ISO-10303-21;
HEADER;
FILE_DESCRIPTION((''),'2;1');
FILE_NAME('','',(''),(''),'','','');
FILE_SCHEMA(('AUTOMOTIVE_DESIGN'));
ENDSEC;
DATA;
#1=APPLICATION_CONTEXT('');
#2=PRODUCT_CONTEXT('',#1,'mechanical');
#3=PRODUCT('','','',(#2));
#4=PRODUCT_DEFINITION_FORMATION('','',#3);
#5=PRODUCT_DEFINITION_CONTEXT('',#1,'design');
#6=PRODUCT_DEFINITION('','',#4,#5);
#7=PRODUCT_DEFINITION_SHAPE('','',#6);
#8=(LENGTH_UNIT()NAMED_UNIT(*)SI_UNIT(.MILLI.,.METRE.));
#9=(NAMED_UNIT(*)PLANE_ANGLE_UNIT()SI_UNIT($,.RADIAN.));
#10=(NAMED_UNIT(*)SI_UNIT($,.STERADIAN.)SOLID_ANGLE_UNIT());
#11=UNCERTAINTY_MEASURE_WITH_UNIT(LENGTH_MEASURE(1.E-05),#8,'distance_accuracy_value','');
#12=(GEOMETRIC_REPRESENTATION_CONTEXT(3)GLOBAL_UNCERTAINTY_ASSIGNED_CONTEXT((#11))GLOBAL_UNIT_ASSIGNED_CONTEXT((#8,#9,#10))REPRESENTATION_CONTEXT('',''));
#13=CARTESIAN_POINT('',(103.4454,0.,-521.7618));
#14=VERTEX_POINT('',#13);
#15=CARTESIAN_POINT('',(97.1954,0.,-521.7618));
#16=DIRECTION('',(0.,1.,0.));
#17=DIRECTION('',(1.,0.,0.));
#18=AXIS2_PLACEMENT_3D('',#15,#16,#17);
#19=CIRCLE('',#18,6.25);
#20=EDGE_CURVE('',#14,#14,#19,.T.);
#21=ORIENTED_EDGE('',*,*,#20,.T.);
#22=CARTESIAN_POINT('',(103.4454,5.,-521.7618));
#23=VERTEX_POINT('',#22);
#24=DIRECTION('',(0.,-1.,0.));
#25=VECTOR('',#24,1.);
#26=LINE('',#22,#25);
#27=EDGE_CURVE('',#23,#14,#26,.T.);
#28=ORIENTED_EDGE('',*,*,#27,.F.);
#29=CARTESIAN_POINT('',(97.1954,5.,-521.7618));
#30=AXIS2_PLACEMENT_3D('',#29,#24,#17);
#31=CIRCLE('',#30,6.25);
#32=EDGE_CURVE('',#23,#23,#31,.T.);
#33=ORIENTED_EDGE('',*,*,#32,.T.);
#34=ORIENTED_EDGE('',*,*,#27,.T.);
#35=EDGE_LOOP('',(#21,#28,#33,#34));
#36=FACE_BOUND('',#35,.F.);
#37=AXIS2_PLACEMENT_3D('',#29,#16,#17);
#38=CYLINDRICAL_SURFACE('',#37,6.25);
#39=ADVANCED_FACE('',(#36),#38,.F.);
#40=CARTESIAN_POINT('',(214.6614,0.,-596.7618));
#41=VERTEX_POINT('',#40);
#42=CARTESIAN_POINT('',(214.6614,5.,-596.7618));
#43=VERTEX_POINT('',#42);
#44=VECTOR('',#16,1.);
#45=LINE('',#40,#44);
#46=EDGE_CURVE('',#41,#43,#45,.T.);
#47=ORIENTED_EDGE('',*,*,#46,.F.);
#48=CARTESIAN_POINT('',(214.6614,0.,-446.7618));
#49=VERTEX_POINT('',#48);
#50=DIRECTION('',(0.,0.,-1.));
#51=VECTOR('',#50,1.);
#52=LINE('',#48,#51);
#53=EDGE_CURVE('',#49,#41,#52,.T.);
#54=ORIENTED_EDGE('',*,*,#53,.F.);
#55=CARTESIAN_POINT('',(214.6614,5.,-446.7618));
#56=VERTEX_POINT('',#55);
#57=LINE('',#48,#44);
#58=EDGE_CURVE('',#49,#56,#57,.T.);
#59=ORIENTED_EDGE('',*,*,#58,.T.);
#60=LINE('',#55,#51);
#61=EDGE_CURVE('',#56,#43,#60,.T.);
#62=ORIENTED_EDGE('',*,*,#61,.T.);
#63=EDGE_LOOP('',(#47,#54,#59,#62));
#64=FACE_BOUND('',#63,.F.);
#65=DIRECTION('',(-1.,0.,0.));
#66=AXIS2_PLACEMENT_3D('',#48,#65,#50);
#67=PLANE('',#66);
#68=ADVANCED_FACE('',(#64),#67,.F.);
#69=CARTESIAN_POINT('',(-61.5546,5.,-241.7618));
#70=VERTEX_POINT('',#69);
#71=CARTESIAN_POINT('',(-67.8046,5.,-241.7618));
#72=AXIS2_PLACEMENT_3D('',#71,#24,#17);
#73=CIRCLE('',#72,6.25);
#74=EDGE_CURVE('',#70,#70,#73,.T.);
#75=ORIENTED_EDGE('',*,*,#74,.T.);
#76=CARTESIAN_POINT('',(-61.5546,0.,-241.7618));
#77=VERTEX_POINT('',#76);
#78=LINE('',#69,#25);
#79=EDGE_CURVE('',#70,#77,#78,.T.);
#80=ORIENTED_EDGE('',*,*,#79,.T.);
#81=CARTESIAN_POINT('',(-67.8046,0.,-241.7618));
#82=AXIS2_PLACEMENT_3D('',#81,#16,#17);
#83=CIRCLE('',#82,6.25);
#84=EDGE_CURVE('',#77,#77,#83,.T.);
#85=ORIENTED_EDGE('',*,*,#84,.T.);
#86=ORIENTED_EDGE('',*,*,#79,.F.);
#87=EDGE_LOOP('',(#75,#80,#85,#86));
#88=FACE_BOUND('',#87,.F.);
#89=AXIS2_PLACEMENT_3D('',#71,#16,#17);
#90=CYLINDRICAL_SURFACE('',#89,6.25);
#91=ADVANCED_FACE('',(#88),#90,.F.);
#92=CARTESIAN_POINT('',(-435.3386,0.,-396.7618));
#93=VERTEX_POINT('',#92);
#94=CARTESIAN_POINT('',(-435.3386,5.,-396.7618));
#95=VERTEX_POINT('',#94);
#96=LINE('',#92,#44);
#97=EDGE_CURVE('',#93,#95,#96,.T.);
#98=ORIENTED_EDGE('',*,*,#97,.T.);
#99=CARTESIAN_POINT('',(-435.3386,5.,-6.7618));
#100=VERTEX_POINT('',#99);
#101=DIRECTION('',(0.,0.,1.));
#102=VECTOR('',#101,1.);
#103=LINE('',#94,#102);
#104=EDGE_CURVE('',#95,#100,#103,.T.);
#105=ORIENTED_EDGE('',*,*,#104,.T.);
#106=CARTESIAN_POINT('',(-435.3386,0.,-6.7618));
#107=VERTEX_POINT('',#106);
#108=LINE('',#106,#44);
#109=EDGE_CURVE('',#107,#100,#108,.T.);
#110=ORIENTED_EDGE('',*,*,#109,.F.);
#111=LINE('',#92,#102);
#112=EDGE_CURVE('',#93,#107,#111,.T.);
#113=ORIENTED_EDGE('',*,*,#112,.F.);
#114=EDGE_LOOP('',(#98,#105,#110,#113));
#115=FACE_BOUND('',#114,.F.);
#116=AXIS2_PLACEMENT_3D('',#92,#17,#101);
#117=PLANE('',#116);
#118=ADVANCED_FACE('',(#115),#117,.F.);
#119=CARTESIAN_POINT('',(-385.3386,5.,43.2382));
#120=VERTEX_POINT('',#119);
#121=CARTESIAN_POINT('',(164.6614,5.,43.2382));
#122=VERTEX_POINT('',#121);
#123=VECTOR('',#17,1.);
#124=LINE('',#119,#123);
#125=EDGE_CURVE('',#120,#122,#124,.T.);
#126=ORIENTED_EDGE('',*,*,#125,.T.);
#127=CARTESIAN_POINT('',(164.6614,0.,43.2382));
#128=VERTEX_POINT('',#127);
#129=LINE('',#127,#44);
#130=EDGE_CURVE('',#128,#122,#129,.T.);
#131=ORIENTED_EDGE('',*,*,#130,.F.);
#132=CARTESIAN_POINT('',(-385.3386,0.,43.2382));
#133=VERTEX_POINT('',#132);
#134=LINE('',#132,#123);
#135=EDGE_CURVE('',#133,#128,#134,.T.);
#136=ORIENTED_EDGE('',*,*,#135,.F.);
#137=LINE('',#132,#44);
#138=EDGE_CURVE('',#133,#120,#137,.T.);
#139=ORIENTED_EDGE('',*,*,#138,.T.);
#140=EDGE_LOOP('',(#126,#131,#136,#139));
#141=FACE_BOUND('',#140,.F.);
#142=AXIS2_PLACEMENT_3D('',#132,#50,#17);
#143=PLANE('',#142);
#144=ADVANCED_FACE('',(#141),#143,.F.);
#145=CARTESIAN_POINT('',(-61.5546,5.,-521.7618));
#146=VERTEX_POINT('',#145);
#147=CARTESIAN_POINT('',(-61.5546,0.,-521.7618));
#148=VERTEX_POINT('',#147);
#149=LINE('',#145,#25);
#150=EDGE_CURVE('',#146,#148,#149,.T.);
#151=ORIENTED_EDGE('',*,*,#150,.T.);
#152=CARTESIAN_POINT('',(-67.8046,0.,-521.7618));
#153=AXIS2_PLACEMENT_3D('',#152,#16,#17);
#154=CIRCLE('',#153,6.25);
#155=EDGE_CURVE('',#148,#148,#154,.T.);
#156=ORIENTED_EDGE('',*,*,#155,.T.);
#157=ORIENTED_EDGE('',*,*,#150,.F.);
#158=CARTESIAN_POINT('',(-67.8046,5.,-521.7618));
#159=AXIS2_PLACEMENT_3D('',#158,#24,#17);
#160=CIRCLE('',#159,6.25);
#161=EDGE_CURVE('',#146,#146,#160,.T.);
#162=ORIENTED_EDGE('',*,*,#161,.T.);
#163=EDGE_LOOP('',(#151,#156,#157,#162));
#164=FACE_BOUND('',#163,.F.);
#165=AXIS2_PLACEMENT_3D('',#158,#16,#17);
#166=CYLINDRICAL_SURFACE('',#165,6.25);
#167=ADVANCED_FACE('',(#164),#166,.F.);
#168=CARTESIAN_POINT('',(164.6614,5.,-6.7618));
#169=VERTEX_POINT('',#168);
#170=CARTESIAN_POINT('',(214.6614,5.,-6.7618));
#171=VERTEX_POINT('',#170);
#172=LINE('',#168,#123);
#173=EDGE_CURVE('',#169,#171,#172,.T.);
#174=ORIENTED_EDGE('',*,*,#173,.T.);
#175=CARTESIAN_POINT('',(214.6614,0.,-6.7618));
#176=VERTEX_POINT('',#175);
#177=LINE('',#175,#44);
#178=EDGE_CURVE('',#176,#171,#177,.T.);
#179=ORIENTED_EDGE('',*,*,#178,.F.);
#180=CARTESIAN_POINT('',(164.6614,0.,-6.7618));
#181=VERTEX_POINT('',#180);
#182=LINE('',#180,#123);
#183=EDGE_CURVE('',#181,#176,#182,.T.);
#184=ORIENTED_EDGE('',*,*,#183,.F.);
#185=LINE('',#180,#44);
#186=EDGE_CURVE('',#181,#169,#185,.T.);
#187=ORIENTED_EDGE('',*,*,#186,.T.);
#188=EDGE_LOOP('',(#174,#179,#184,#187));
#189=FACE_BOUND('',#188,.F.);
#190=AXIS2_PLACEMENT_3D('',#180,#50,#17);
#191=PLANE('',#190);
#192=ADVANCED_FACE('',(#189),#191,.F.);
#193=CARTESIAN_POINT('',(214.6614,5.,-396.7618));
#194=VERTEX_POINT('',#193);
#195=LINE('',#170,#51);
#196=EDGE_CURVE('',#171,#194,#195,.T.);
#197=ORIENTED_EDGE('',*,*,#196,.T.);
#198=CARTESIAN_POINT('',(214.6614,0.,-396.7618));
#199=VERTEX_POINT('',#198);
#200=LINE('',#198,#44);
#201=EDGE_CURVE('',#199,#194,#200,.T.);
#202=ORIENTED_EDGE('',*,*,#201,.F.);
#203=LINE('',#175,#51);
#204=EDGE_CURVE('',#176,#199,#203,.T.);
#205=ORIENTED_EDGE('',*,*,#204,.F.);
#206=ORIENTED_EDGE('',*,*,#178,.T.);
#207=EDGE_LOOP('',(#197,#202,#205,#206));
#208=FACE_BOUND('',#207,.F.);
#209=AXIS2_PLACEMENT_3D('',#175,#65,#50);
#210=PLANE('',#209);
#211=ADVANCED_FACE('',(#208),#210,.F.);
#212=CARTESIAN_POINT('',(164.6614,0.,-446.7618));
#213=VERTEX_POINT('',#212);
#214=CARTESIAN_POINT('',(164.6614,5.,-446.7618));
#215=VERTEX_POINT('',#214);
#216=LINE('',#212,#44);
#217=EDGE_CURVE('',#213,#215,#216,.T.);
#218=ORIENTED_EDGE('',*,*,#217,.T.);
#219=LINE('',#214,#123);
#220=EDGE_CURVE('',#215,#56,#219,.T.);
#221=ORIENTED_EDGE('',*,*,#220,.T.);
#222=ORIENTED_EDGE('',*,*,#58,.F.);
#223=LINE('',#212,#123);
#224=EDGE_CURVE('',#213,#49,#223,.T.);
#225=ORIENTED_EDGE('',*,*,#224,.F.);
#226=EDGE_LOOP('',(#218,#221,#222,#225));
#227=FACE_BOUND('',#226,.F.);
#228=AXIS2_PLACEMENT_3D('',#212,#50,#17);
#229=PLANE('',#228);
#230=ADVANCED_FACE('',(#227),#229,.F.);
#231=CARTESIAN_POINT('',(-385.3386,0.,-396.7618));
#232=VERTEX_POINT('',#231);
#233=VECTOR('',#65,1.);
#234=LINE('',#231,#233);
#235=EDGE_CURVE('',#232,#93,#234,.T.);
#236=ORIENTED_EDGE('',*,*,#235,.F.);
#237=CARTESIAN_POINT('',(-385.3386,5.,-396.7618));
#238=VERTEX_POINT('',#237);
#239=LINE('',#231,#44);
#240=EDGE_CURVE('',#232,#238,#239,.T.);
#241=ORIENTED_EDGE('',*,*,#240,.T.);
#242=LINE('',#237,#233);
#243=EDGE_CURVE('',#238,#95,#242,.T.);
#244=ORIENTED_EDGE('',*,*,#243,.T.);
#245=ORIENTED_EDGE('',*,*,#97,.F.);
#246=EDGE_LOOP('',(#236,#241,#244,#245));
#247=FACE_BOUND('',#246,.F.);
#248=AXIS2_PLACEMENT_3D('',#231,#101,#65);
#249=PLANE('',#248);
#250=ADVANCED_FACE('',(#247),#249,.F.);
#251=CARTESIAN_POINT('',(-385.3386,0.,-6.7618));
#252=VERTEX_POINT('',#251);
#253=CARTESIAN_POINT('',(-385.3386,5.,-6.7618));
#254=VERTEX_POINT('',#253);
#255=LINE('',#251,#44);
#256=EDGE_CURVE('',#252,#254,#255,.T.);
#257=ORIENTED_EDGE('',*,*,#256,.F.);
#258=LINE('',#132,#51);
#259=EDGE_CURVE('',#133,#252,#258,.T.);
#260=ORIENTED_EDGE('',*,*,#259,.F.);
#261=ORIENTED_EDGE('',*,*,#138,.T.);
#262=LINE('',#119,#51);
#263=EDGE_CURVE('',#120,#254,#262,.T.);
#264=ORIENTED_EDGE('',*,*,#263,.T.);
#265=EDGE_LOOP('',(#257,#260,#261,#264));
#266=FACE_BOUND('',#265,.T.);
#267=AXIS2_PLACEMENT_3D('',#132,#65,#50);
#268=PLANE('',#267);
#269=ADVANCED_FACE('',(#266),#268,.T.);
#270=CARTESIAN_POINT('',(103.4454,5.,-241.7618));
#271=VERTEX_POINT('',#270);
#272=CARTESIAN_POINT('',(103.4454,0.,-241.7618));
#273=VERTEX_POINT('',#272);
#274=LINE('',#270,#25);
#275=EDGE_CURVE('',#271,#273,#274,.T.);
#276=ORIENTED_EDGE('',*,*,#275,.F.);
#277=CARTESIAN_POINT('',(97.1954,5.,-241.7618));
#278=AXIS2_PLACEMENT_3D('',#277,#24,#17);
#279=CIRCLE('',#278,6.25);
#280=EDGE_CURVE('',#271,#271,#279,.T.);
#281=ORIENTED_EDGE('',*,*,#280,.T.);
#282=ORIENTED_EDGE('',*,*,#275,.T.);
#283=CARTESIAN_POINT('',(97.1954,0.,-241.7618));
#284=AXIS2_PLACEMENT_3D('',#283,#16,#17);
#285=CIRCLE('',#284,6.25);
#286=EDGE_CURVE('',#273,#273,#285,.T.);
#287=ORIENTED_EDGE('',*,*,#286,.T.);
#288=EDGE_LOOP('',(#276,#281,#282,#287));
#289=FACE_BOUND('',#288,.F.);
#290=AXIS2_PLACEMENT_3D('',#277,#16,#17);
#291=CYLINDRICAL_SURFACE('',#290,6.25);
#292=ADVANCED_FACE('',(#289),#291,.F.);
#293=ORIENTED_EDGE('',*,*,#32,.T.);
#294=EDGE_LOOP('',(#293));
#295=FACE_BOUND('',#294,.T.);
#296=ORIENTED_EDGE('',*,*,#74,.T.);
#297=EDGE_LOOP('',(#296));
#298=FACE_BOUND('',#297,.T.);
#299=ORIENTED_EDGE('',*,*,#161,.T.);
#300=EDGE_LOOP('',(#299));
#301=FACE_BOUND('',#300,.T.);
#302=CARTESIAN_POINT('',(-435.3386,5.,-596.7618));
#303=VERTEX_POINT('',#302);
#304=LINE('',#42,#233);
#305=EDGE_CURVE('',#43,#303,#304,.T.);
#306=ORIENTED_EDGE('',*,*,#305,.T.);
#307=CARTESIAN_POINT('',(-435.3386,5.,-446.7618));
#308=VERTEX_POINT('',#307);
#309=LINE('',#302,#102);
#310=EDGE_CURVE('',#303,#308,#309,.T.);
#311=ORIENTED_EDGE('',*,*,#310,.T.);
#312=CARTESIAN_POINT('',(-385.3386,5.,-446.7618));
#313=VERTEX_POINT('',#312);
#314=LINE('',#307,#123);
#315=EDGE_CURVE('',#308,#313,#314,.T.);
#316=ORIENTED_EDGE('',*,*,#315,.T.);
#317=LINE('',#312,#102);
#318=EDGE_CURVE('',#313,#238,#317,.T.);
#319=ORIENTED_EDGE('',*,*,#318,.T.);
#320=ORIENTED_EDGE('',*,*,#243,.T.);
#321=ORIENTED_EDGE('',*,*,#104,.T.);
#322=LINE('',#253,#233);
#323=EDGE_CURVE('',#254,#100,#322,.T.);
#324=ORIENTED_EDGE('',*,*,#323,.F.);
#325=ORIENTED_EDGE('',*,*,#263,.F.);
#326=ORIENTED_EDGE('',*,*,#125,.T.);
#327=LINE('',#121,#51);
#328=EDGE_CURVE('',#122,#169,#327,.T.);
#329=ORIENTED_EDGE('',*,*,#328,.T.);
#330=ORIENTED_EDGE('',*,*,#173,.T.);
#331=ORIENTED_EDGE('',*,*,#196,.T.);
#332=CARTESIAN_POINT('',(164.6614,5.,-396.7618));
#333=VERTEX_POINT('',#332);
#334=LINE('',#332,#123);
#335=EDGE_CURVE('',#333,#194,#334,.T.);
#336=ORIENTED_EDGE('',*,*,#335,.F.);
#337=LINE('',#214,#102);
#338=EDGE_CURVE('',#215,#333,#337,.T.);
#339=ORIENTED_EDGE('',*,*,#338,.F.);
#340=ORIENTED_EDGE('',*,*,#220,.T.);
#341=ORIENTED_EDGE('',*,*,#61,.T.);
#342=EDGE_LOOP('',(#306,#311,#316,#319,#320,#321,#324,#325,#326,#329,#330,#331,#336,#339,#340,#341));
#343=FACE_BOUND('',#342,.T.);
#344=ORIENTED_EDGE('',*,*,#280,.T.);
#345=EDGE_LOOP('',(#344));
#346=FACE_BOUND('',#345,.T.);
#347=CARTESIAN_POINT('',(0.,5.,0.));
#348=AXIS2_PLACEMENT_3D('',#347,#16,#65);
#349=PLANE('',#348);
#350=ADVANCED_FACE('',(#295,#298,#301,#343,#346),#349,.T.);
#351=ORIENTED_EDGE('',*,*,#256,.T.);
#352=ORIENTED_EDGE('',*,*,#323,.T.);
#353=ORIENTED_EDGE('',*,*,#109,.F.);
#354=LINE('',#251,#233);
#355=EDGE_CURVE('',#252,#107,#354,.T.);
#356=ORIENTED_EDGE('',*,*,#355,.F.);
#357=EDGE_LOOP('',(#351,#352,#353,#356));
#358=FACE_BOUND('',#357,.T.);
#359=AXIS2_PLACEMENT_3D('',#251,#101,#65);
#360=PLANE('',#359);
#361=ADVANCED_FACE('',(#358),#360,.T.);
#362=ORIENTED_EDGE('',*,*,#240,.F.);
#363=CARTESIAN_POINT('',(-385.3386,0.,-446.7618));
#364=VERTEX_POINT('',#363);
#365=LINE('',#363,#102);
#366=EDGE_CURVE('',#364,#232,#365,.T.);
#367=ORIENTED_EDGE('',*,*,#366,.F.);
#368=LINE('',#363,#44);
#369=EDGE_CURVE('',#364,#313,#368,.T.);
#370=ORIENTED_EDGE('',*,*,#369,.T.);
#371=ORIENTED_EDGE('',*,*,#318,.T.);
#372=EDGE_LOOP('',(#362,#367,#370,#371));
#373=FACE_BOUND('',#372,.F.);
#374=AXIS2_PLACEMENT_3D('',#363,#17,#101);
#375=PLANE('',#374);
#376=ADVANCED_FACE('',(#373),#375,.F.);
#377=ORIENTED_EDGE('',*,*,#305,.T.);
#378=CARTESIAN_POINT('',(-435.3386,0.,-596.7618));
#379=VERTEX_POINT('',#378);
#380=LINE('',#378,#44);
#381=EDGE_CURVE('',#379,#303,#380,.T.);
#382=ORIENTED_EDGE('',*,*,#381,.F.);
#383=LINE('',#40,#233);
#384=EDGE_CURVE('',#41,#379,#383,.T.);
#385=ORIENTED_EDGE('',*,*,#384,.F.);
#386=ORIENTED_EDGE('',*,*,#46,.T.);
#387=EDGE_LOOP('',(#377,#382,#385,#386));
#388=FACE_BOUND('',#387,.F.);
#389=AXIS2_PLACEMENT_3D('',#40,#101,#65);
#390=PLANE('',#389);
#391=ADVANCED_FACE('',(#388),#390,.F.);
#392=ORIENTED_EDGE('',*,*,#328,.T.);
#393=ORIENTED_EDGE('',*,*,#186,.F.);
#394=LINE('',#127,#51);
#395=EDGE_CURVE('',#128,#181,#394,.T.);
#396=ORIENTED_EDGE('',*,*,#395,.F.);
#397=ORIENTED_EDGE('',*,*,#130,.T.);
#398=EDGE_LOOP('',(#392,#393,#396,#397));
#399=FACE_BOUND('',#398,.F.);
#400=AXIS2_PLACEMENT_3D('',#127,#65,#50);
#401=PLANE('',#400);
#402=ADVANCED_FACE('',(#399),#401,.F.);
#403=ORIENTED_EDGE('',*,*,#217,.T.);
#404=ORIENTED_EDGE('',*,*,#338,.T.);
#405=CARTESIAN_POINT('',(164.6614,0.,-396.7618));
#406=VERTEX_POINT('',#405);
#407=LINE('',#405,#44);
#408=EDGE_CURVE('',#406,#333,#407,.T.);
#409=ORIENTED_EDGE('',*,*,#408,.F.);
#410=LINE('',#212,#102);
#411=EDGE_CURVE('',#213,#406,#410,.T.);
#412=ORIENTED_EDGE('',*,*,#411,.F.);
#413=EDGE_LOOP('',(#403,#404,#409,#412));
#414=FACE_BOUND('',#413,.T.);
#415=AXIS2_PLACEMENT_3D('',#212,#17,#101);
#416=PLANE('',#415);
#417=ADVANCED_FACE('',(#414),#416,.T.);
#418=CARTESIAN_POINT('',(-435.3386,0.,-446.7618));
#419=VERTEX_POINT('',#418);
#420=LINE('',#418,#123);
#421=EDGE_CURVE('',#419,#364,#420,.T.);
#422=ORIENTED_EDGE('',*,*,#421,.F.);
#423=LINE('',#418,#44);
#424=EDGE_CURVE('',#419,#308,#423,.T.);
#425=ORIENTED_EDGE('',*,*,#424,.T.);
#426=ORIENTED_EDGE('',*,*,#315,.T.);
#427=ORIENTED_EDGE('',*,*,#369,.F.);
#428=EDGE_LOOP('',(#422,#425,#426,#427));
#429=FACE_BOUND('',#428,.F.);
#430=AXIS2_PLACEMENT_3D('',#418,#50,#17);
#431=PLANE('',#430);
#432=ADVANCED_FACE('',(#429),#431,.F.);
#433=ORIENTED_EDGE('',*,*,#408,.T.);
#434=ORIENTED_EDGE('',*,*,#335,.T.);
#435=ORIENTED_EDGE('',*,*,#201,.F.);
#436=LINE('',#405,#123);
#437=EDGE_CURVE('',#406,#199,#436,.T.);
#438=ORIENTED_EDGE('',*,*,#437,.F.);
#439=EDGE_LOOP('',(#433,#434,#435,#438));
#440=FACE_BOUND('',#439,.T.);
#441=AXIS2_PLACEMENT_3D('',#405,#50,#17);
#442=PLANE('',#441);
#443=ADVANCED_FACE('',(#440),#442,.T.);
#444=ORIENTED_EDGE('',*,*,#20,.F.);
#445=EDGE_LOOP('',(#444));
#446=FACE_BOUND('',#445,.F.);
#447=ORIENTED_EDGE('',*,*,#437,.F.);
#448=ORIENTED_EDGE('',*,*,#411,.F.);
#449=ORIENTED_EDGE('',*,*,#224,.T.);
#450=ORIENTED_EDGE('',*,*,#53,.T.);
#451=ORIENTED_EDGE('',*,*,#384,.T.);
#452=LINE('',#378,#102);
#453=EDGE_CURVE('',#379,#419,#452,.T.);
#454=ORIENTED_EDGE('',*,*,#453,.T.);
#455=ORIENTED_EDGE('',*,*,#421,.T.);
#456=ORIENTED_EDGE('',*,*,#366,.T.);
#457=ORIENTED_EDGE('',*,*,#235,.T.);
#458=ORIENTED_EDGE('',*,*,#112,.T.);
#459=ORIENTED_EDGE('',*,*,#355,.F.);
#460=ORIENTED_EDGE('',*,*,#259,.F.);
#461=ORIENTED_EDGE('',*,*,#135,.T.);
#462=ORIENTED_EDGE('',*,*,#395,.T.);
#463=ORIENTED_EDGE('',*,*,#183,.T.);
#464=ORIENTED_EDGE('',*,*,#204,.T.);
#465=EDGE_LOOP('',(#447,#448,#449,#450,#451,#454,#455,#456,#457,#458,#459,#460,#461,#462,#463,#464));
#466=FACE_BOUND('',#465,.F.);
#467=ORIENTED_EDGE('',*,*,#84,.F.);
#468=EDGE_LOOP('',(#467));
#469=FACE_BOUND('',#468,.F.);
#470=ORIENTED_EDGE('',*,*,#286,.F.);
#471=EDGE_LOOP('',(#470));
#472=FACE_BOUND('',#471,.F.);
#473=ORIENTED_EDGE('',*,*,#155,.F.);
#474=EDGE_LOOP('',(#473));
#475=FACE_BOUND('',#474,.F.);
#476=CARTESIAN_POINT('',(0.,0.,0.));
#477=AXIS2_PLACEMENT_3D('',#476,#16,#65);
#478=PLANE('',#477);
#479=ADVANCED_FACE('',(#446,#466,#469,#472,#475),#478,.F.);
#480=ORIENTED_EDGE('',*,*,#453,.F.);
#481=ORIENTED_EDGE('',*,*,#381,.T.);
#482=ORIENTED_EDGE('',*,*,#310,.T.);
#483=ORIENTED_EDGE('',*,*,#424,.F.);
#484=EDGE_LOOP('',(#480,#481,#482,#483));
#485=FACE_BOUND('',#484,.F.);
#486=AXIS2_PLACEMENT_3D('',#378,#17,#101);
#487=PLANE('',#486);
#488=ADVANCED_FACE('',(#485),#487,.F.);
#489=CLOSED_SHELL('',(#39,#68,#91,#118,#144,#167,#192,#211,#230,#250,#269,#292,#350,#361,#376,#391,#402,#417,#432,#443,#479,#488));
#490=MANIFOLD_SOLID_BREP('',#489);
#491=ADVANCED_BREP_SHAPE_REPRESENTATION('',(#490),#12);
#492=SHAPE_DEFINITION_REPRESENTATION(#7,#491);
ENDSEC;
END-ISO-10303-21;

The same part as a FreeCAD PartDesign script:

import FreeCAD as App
import Part
import Sketcher


def add_polygon(sketch, points):
    """Adds a closed chain of lines whose ends are joined by coincident constraints."""
    first, n = sketch.GeometryCount, len(points)
    for a, b in zip(points, points[1:] + points[:1]):
        sketch.addGeometry(Part.LineSegment(App.Vector(*a, 0), App.Vector(*b, 0)), False)
    for i in range(n):
        sketch.addConstraint(Sketcher.Constraint("Coincident", first + i, 2, first + (i + 1) % n, 1))

doc = App.newDocument("Part")
body = doc.addObject("PartDesign::Body", "Body")

sketch1 = body.newObject("Sketcher::SketchObject", "Sketch")
sketch1.AttachmentSupport = (doc.getObject("XZ_Plane"), [""])
sketch1.MapMode = "FlatFace"
add_polygon(sketch1, [(-385.3386, -6.7618), (-385.3386, 43.2382), (164.6614, 43.2382), (164.6614, -6.7618), (214.6614, -6.7618), (214.6614, -396.7618), (164.6614, -396.7618), (164.6614, -446.7618), (214.6614, -446.7618), (214.6614, -596.7618), (-435.3386, -596.7618), (-435.3386, -446.7618), (-385.3386, -446.7618), (-385.3386, -396.7618), (-435.3386, -396.7618), (-435.3386, -6.7618)])
sketch1.addConstraint([
    Sketcher.Constraint("Vertical", 0),
    Sketcher.Constraint("Horizontal", 1),
    Sketcher.Constraint("Vertical", 2),
    Sketcher.Constraint("Horizontal", 3),
    Sketcher.Constraint("Vertical", 4),
    Sketcher.Constraint("Horizontal", 5),
    Sketcher.Constraint("Vertical", 6),
    Sketcher.Constraint("Horizontal", 7),
    Sketcher.Constraint("Vertical", 8),
    Sketcher.Constraint("Horizontal", 9),
    Sketcher.Constraint("Vertical", 10),
    Sketcher.Constraint("Horizontal", 11),
    Sketcher.Constraint("Vertical", 12),
    Sketcher.Constraint("Horizontal", 13),
    Sketcher.Constraint("Vertical", 14),
    Sketcher.Constraint("Horizontal", 15),
    Sketcher.Constraint("Horizontal", 7, 2, 10, 2),
    Sketcher.Constraint("Horizontal", 5, 2, 12, 2),
    Sketcher.Constraint("Horizontal", 3, 2, 14, 2),
    Sketcher.Constraint("Vertical", 2, 2, 5, 2),
    Sketcher.Constraint("Vertical", 4, 2, 7, 2),
    Sketcher.Constraint("Vertical", 0, 2, 11, 2),
    Sketcher.Constraint("Vertical", 10, 2, 13, 2),
    Sketcher.Constraint("Equal", 7, 11),
    Sketcher.Constraint("Equal", 15, 0),
    Sketcher.Constraint("Equal", 2, 6),
    Sketcher.Constraint("DistanceX", 3, 1, 3, 2, 50.0),
    Sketcher.Constraint("DistanceX", 9, 2, 9, 1, 650.0),
    Sketcher.Constraint("DistanceY", 8, 2, 8, 1, 150.0),
    Sketcher.Constraint("DistanceY", 4, 2, 4, 1, 390.0),
    Sketcher.Constraint("DistanceX", 0, 2, -1, 1, 385.3386),
    Sketcher.Constraint("DistanceY", -1, 1, 0, 2, 43.2382),
])
pad1 = body.newObject("PartDesign::Pad", "Pad")
pad1.Profile = sketch1
pad1.Length = 5
pad1.Reversed = True

sketch2 = body.newObject("Sketcher::SketchObject", "Sketch001")
sketch2.AttachmentSupport = (doc.getObject("XZ_Plane"), [""])
sketch2.MapMode = "FlatFace"
sketch2.AttachmentOffset = App.Placement(App.Vector(0, 0, -5), App.Rotation())
sketch2.addGeometry([
    Part.Circle(App.Vector(-67.8046, -521.7618, 0), App.Vector(0, 0, 1), 6.25),
    Part.Circle(App.Vector(97.1954, -521.7618, 0), App.Vector(0, 0, 1), 6.25),
    Part.Circle(App.Vector(97.1954, -241.7618, 0), App.Vector(0, 0, 1), 6.25),
    Part.Circle(App.Vector(-67.8046, -241.7618, 0), App.Vector(0, 0, 1), 6.25),
], False)
sketch2.addConstraint([
    Sketcher.Constraint("Equal", 0, 1),
    Sketcher.Constraint("Equal", 1, 2),
    Sketcher.Constraint("Equal", 2, 3),
    Sketcher.Constraint("Horizontal", 0, 3, 1, 3),
    Sketcher.Constraint("Horizontal", 2, 3, 3, 3),
    Sketcher.Constraint("Vertical", 1, 3, 2, 3),
    Sketcher.Constraint("Vertical", 0, 3, 3, 3),
    Sketcher.Constraint("Diameter", 0, 12.5),
    Sketcher.Constraint("DistanceX", 0, 3, 1, 3, 165.0),
    Sketcher.Constraint("DistanceY", 1, 3, 2, 3, 280.0),
    Sketcher.Constraint("DistanceX", 0, 3, -1, 1, 67.8046),
    Sketcher.Constraint("DistanceY", 0, 3, -1, 1, 521.7618),
])
pocket1 = body.newObject("PartDesign::Pocket", "Pocket")
pocket1.Profile = sketch2
pocket1.Type = "ThroughAll"
pocket1.Reversed = True

doc.recompute()
